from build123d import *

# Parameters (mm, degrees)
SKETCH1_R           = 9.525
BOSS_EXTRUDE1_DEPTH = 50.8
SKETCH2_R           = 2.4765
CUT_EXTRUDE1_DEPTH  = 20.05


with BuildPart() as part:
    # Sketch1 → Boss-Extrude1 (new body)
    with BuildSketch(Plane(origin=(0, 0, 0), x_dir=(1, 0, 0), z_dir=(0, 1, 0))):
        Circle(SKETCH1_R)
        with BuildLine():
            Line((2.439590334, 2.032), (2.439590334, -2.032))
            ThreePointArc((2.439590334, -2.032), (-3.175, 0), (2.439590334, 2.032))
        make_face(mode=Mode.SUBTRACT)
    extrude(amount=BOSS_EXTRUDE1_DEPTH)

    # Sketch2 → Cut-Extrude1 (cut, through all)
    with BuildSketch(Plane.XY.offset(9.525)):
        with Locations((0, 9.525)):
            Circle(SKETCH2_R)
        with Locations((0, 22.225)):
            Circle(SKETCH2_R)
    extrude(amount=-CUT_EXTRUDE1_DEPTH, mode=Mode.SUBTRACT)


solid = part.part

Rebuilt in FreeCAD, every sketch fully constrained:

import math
import FreeCAD as App
import Part
import Sketcher
Q = App.Units.Quantity

doc = App.newDocument("Part")
body = doc.addObject("PartDesign::Body", "Body")

sketch1 = doc.addObject("Sketcher::SketchObject", "Sketch")
body.addObject(sketch1)
sketch1.AttachmentSupport = (doc.XZ_Plane, [""])
sketch1.MapMode = "FlatFace"
sketch1.addGeometry(Part.Circle(App.Vector(0, 0, 0), App.Vector(0, 0, 1), 9.5), False)
sketch1.addGeometry(Part.ArcOfCircle(Part.Circle(App.Vector(0, 0, 0), App.Vector(0, 0, 1), 3.2), math.radians(40), math.radians(320)), False)
sketch1.addGeometry(Part.LineSegment(App.Vector(2.4, -2, 0), App.Vector(2.4, 2, 0)), False)
sketch1.addConstraint(Sketcher.Constraint("Coincident", 1, 1, 2, 2))
sketch1.addConstraint(Sketcher.Constraint("Coincident", 2, 1, 1, 2))
sketch1.addConstraint(Sketcher.Constraint("Vertical", 2))
sketch1.addConstraint(Sketcher.Constraint("Coincident", 0, 3, -1, 1))
sketch1.addConstraint(Sketcher.Constraint("Coincident", 1, 3, -1, 1))
sketch1.addConstraint(Sketcher.Constraint("Diameter", 0, Q("0.75 in")))
sketch1.addConstraint(Sketcher.Constraint("Radius", 1, Q("0.125 in")))
sketch1.addConstraint(Sketcher.Constraint("DistanceY", 2, 1, 2, 2, Q("0.16 in")))
pad1 = doc.addObject("PartDesign::Pad", "Pad")
body.addObject(pad1)
pad1.Profile = sketch1
pad1.Length = Q("2 in")
pad1.Reversed = True

sketch2 = doc.addObject("Sketcher::SketchObject", "Sketch001")
body.addObject(sketch2)
sketch2.AttachmentSupport = (doc.XY_Plane, [""])
sketch2.MapMode = "FlatFace"
sketch2.AttachmentOffset = App.Placement(App.Vector(0, 0, 0.375 * 25.4), App.Rotation())
sketch2.addGeometry(Part.Circle(App.Vector(0, 9.5, 0), App.Vector(0, 0, 1), 2.5), False)
sketch2.addGeometry(Part.Circle(App.Vector(0, 22.2, 0), App.Vector(0, 0, 1), 2.5), False)
sketch2.addConstraint(Sketcher.Constraint("Equal", 0, 1))
sketch2.addConstraint(Sketcher.Constraint("PointOnObject", 0, 3, -2))
sketch2.addConstraint(Sketcher.Constraint("PointOnObject", 1, 3, -2))
sketch2.addConstraint(Sketcher.Constraint("Diameter", 0, Q("0.195 in")))
sketch2.addConstraint(Sketcher.Constraint("DistanceY", 0, 3, 1, 3, Q("0.5 in")))
sketch2.addConstraint(Sketcher.Constraint("DistanceY", -1, 1, 0, 3, Q("0.375 in")))
pocket1 = doc.addObject("PartDesign::Pocket", "Pocket")
body.addObject(pocket1)
pocket1.Profile = sketch2
pocket1.Type = "ThroughAll"

doc.recompute()
